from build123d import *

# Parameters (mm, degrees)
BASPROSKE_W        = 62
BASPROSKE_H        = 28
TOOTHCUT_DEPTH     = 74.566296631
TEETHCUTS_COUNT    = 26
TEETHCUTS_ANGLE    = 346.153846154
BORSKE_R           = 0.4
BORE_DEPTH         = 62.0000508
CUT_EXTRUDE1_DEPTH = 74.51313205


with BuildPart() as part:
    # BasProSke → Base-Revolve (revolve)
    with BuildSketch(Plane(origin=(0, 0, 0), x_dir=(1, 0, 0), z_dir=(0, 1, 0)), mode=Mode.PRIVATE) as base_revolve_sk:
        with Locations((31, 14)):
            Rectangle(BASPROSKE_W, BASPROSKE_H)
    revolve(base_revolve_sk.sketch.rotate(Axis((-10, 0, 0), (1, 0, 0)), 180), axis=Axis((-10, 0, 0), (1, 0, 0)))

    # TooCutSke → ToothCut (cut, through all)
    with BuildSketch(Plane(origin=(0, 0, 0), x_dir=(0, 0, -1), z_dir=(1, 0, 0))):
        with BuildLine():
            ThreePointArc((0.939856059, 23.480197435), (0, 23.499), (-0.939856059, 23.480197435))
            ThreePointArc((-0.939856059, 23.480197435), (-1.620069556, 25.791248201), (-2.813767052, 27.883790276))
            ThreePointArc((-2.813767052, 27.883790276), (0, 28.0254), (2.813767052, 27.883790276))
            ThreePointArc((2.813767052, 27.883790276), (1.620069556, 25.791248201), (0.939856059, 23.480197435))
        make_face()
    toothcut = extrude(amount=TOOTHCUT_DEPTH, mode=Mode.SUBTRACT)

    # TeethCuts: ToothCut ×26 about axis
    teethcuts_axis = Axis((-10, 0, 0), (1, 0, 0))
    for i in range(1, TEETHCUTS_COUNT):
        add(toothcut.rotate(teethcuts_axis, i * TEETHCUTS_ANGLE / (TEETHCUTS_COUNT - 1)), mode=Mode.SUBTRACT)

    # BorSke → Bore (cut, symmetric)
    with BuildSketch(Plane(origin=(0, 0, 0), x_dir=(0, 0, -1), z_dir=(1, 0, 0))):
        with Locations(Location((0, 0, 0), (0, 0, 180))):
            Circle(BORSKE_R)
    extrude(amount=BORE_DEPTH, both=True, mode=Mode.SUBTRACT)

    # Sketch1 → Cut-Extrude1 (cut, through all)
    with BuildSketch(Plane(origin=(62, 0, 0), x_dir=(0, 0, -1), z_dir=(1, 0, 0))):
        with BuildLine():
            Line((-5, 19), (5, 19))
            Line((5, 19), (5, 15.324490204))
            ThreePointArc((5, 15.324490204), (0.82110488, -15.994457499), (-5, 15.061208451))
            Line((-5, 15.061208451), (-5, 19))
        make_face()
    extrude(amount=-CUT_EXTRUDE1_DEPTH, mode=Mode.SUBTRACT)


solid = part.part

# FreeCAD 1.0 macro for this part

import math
import FreeCAD as App
import Part
import Sketcher


def add_polygon(sketch, points):
    """Adds a closed chain of lines whose ends are joined by coincident constraints."""
    first, n = sketch.GeometryCount, len(points)
    for a, b in zip(points, points[1:] + points[:1]):
        sketch.addGeometry(Part.LineSegment(App.Vector(*a, 0), App.Vector(*b, 0)), False)
    for i in range(n):
        sketch.addConstraint(Sketcher.Constraint("Coincident", first + i, 2, first + (i + 1) % n, 1))

doc = App.newDocument("Part")
body = doc.addObject("PartDesign::Body", "Body")

sketch1 = doc.addObject("Sketcher::SketchObject", "Sketch")
body.addObject(sketch1)
sketch1.AttachmentSupport = (doc.XZ_Plane, [""])
sketch1.MapMode = "FlatFace"
add_polygon(sketch1, [(0, -28), (0, 0), (62, 0), (62, -28)])
sketch1.addConstraint(Sketcher.Constraint("Vertical", 0))
sketch1.addConstraint(Sketcher.Constraint("Horizontal", 1))
sketch1.addConstraint(Sketcher.Constraint("Vertical", 2))
sketch1.addConstraint(Sketcher.Constraint("Horizontal", 3))
sketch1.addConstraint(Sketcher.Constraint("Coincident", 0, 2, -1, 1))
sketch1.addConstraint(Sketcher.Constraint("DistanceX", 1, 1, 1, 2, 62.0))
sketch1.addConstraint(Sketcher.Constraint("DistanceY", 0, 1, 0, 2, 28.0))
revolution = doc.addObject("PartDesign::Revolution", "Revolution")
body.addObject(revolution)
revolution.Profile = sketch1
revolution.ReferenceAxis = (sketch1, ["H_Axis"])
revolution.Angle = 360

sketch2 = doc.addObject("Sketcher::SketchObject", "Sketch001")
body.addObject(sketch2)
sketch2.AttachmentSupport = (doc.YZ_Plane, [""])
sketch2.MapMode = "FlatFace"
sketch2.addGeometry(Part.ArcOfCircle(Part.Circle(App.Vector(0, 0, 0), App.Vector(0, 0, 1), 23.5), math.radians(-2.29), math.radians(2.29)), False)
sketch2.addGeometry(Part.ArcOfCircle(Part.Circle(App.Vector(21.7, -11.2, 0), App.Vector(0, 0, 1), 10.4), math.radians(54), math.radians(80)), False)
sketch2.addGeometry(Part.ArcOfCircle(Part.Circle(App.Vector(0, 0, 0), App.Vector(0, 0, 1), 28), math.radians(-5.76), math.radians(5.76)), False)
sketch2.addGeometry(Part.ArcOfCircle(Part.Circle(App.Vector(21.7, 11.2, 0), App.Vector(0, 0, 1), 10.4), math.radians(-80), math.radians(-54)), False)
sketch2.addConstraint(Sketcher.Constraint("Coincident", 0, 1, 1, 2))
sketch2.addConstraint(Sketcher.Constraint("Coincident", 1, 1, 2, 1))
sketch2.addConstraint(Sketcher.Constraint("Coincident", 2, 2, 3, 2))
sketch2.addConstraint(Sketcher.Constraint("Coincident", 3, 1, 0, 2))
sketch2.addConstraint(Sketcher.Constraint("Coincident", 0, 3, -1, 1))
sketch2.addConstraint(Sketcher.Constraint("Coincident", 2, 3, -1, 1))
sketch2.addConstraint(Sketcher.Constraint("Equal", 1, 3))
sketch2.addConstraint(Sketcher.Constraint("Symmetric", 1, 3, 3, 3, -1))
sketch2.addConstraint(Sketcher.Constraint("Radius", 1, 10.4))
sketch2.addConstraint(Sketcher.Constraint("Radius", 0, 23.499))
sketch2.addConstraint(Sketcher.Constraint("Radius", 2, 28.0254))
sketch2.addConstraint(Sketcher.Constraint("DistanceX", 1, 3, 0, 1, 1.7612))
sketch2.addConstraint(Sketcher.Constraint("DistanceY", 0, 1, 3, 3, 12.129501))
pocket1 = doc.addObject("PartDesign::Pocket", "Pocket")
body.addObject(pocket1)
pocket1.Profile = sketch2
pocket1.Type = "ThroughAll"
pocket1.Reversed = True
doc.recompute()

polarpattern = doc.addObject("PartDesign::PolarPattern", "PolarPattern")
body.addObject(polarpattern)
polarpattern.Originals = [pocket1]
polarpattern.Axis = (doc.X_Axis, [""])
polarpattern.Angle = 360
polarpattern.Occurrences = 26
body.Tip = polarpattern

sketch3 = doc.addObject("Sketcher::SketchObject", "Sketch002")
body.addObject(sketch3)
sketch3.AttachmentSupport = (doc.YZ_Plane, [""])
sketch3.MapMode = "FlatFace"
sketch3.addGeometry(Part.Circle(App.Vector(0, 0, 0), App.Vector(0, 0, 1), 0.4), False)
sketch3.addConstraint(Sketcher.Constraint("Coincident", 0, 3, -1, 1))
sketch3.addConstraint(Sketcher.Constraint("Diameter", 0, 0.8))
pocket2 = doc.addObject("PartDesign::Pocket", "Pocket001")
body.addObject(pocket2)
pocket2.Profile = sketch3
pocket2.Length = 124.000102
pocket2.Midplane = True

sketch4 = doc.addObject("Sketcher::SketchObject", "Sketch003")
body.addObject(sketch4)
sketch4.AttachmentSupport = (doc.YZ_Plane, [""])
sketch4.MapMode = "FlatFace"
sketch4.AttachmentOffset = App.Placement(App.Vector(0, 0, 62), App.Rotation())
sketch4.addGeometry(Part.LineSegment(App.Vector(19, -5, 0), App.Vector(19, 5, 0)), False)
sketch4.addGeometry(Part.LineSegment(App.Vector(19, 5, 0), App.Vector(15.1, 5, 0)), False)
sketch4.addGeometry(Part.ArcOfCircle(Part.Circle(App.Vector(0, -0.4, 0), App.Vector(0, 0, 1), 16), math.radians(20), math.radians(343)), False)
sketch4.addGeometry(Part.LineSegment(App.Vector(15.3, -5, 0), App.Vector(19, -5, 0)), False)
sketch4.addConstraint(Sketcher.Constraint("Coincident", 0, 2, 1, 1))
sketch4.addConstraint(Sketcher.Constraint("Coincident", 1, 2, 2, 1))
sketch4.addConstraint(Sketcher.Constraint("Coincident", 2, 2, 3, 1))
sketch4.addConstraint(Sketcher.Constraint("Coincident", 3, 2, 0, 1))
sketch4.addConstraint(Sketcher.Constraint("Vertical", 0))
sketch4.addConstraint(Sketcher.Constraint("Horizontal", 1))
sketch4.addConstraint(Sketcher.Constraint("Horizontal", 3))
sketch4.addConstraint(Sketcher.Constraint("PointOnObject", 2, 3, -2))
sketch4.addConstraint(Sketcher.Constraint("Radius", 2, 16.0))
sketch4.addConstraint(Sketcher.Constraint("DistanceY", 0, 1, 0, 2, 10.0))
sketch4.addConstraint(Sketcher.Constraint("DistanceX", -1, 1, 0, 2, 19.0))
sketch4.addConstraint(Sketcher.Constraint("DistanceY", -1, 1, 0, 2, 5.0))
sketch4.addConstraint(Sketcher.Constraint("DistanceY", 2, 3, -1, 1, 0.4))
pocket3 = doc.addObject("PartDesign::Pocket", "Pocket002")
body.addObject(pocket3)
pocket3.Profile = sketch4
pocket3.Type = "ThroughAll"

doc.recompute()
